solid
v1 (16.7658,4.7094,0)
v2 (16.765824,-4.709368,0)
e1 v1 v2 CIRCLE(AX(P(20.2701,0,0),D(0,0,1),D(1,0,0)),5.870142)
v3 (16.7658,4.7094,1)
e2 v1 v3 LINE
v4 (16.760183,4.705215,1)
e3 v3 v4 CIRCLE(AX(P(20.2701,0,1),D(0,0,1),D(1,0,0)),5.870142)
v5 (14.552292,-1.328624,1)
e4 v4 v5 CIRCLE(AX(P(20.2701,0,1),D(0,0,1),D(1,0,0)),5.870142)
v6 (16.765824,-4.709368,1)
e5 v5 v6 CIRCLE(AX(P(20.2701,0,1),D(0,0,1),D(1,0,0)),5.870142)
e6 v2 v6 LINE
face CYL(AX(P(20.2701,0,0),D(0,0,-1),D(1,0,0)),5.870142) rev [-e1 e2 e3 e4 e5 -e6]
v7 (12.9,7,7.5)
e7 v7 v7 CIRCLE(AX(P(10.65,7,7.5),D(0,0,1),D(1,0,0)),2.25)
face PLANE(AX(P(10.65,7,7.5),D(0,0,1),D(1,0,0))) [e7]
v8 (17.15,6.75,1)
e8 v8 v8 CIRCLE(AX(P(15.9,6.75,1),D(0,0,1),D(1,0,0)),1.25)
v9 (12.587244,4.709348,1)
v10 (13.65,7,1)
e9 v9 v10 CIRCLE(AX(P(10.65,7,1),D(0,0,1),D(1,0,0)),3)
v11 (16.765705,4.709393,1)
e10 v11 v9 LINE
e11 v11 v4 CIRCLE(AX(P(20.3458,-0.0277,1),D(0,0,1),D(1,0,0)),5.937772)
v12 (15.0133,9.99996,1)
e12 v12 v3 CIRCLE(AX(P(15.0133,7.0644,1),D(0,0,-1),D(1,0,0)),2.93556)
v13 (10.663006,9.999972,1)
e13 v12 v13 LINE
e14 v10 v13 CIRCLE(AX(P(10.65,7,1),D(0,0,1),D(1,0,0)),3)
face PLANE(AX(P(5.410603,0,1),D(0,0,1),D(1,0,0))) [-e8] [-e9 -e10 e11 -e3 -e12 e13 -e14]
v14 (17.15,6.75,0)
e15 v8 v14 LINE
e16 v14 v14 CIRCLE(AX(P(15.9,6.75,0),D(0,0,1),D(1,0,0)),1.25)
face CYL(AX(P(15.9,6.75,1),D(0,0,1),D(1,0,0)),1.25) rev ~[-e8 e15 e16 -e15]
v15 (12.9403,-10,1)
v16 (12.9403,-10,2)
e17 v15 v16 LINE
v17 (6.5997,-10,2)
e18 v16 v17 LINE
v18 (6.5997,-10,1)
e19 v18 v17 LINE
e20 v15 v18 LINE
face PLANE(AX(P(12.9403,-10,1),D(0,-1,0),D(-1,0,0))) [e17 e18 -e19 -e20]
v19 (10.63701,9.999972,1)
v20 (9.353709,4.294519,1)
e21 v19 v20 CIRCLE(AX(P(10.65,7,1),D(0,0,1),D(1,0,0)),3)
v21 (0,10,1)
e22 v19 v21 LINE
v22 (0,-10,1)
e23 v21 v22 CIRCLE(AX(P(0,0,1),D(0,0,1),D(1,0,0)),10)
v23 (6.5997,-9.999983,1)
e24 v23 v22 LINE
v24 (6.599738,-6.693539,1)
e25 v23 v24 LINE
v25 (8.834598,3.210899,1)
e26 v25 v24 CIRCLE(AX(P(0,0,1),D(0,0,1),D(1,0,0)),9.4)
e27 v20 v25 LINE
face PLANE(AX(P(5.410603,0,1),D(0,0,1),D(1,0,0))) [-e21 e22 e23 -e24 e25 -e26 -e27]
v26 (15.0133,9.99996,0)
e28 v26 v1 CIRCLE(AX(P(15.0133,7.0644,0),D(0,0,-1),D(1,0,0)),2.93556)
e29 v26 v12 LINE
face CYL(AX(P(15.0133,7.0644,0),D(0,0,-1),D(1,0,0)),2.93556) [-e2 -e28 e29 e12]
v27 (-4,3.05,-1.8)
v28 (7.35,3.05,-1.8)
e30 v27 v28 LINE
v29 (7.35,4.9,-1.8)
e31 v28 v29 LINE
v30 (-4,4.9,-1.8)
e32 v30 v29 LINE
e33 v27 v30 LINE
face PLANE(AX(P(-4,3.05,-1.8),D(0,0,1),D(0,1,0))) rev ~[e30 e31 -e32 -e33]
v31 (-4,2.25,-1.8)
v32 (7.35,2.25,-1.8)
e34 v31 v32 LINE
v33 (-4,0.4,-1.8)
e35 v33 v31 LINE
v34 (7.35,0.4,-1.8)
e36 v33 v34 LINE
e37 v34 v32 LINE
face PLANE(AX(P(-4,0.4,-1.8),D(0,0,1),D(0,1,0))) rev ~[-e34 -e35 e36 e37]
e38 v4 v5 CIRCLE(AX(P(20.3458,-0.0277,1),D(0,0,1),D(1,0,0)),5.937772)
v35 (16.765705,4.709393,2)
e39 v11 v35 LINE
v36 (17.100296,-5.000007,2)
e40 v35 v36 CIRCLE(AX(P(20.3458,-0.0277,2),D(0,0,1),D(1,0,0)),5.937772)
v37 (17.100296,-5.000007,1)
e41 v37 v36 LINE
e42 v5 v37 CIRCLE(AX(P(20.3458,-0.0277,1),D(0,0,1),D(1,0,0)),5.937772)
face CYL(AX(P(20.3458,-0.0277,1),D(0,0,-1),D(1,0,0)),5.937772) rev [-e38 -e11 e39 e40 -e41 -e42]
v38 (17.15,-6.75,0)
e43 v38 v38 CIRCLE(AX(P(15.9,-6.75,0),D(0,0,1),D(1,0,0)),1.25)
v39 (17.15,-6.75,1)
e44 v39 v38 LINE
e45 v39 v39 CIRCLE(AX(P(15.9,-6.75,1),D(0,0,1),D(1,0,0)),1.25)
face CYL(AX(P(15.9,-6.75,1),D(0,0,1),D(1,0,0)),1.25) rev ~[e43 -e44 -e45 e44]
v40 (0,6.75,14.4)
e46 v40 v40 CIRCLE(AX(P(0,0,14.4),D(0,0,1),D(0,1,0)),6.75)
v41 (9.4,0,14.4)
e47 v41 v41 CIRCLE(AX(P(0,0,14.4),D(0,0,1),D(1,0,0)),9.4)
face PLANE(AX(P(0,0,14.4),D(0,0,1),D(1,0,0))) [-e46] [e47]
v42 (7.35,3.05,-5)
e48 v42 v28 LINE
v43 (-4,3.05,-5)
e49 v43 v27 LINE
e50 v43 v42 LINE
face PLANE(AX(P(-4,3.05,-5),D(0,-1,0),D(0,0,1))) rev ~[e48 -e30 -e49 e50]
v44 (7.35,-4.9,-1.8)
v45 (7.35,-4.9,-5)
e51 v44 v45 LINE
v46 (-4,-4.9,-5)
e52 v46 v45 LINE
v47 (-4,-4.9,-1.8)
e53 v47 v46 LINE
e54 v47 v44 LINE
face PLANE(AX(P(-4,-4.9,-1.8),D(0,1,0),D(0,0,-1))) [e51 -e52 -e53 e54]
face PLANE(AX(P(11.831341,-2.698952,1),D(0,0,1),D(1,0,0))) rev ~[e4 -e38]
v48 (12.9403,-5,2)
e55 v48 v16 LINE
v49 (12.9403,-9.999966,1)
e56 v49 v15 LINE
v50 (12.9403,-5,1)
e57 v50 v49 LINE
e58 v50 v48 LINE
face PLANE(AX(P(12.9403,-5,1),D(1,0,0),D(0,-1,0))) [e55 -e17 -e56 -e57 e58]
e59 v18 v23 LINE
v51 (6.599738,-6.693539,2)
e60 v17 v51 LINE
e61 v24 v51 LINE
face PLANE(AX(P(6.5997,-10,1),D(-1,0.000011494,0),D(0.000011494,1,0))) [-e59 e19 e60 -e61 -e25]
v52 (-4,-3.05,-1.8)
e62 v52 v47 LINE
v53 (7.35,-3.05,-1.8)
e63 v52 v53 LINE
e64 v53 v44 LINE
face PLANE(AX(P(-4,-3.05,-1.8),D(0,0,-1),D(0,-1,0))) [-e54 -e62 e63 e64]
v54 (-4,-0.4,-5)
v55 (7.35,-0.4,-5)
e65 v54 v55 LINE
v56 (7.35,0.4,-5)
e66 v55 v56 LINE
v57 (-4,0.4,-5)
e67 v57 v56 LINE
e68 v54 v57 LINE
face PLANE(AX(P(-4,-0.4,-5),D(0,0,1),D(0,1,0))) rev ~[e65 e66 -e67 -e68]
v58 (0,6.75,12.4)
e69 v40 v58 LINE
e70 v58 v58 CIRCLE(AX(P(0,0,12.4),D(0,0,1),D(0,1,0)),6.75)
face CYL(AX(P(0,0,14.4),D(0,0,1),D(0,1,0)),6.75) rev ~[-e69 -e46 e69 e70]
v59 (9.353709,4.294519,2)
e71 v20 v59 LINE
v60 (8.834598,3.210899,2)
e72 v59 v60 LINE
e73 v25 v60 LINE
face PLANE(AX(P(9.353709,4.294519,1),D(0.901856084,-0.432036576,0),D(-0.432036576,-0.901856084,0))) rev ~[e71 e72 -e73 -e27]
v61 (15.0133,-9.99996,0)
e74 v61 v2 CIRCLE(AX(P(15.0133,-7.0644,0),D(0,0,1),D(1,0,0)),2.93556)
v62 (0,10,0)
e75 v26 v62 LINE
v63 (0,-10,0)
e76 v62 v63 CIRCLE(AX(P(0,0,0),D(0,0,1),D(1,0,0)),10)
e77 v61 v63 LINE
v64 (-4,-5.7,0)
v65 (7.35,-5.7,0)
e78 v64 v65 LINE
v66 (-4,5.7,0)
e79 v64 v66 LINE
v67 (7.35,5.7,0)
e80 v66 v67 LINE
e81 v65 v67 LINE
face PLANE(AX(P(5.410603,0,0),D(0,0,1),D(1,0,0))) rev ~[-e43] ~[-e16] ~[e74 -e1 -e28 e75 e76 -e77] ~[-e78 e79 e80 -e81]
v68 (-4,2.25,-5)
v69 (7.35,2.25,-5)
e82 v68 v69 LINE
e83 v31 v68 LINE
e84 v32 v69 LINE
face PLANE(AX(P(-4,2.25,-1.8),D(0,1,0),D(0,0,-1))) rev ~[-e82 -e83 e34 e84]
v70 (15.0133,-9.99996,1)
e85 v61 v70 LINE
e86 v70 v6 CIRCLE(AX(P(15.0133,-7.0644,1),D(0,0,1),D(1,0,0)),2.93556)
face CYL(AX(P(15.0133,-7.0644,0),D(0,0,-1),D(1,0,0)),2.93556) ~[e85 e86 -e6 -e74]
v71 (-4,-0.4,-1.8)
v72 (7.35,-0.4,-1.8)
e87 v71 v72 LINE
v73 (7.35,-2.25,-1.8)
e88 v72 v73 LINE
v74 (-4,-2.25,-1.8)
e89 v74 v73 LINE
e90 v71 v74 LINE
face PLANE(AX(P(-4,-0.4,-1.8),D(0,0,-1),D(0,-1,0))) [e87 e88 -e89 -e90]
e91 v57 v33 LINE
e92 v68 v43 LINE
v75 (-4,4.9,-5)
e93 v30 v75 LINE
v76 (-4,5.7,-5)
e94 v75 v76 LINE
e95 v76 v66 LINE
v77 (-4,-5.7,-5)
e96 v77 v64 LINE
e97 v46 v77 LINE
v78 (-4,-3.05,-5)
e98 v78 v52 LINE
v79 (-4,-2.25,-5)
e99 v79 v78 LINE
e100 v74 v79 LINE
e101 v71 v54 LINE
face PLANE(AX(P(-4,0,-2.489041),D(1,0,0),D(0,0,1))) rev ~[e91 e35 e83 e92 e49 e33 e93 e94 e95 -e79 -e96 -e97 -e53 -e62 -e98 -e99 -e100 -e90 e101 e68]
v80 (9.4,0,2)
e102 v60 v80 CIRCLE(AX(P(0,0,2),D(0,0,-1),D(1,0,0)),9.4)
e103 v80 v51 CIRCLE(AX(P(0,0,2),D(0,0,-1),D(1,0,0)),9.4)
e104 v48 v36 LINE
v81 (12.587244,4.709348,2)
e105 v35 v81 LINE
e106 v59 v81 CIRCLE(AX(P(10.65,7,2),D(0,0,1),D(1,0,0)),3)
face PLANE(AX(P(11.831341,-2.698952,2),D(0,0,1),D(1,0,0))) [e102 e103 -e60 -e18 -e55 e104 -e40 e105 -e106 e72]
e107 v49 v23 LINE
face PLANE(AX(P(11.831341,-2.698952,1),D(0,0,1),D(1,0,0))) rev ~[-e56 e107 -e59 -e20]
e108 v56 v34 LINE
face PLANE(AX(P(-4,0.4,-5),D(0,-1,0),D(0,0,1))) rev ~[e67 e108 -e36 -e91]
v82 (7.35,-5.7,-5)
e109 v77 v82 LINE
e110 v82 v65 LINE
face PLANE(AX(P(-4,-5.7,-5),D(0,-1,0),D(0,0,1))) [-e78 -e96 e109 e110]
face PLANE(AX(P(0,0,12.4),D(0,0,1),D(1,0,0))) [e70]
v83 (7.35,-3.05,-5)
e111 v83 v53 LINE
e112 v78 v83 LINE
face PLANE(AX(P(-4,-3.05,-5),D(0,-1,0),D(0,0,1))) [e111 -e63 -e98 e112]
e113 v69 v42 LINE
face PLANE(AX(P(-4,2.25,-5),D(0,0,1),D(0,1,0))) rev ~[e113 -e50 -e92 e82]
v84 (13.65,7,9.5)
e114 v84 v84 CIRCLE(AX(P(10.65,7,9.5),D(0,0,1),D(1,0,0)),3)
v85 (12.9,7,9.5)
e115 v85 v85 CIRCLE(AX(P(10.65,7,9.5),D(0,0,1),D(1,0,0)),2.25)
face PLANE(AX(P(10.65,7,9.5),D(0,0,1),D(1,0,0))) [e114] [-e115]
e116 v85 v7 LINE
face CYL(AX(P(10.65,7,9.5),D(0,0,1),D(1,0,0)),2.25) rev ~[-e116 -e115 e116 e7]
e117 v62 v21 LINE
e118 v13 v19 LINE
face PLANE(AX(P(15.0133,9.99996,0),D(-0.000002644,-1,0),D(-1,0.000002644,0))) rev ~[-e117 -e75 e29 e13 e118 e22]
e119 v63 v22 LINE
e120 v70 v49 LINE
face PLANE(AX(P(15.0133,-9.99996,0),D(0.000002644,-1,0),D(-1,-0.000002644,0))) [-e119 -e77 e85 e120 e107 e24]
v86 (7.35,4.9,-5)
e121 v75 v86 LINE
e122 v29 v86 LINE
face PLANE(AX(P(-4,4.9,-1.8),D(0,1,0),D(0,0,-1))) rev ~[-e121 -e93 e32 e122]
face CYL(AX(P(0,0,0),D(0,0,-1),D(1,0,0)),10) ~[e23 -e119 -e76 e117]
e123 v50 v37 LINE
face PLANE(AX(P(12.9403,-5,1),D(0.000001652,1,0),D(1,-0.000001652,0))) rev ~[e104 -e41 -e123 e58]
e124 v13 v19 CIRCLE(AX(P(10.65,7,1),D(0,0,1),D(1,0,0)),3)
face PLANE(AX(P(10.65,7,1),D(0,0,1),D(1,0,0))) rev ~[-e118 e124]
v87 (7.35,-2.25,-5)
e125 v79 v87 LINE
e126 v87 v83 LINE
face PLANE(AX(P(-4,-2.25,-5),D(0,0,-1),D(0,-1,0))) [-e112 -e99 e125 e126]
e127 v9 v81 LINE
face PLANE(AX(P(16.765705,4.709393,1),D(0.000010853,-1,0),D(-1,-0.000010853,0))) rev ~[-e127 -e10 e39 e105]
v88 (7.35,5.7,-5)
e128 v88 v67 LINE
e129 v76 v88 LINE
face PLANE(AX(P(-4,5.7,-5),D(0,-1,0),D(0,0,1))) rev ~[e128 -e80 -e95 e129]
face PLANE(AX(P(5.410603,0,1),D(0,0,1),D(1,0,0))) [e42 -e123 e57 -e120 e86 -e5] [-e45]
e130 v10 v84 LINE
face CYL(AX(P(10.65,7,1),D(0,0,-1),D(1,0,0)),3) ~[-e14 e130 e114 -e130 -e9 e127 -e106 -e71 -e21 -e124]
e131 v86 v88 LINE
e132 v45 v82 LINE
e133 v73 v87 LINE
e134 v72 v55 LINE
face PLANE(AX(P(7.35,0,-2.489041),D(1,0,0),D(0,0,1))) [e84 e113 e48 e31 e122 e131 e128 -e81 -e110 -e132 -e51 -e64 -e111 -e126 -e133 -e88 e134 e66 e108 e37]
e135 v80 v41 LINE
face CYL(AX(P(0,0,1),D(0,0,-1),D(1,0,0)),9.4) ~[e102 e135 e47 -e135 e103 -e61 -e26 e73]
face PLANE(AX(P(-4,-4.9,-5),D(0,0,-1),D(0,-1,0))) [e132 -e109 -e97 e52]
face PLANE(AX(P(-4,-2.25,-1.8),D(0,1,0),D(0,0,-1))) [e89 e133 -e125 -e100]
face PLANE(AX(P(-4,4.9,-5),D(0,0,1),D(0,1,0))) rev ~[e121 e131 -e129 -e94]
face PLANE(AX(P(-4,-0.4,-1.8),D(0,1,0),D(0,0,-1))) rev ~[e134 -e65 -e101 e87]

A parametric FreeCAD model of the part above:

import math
import FreeCAD as App
import Part
import Sketcher


def add_polygon(sketch, points):
    """Adds a closed chain of lines whose ends are joined by coincident constraints."""
    first, n = sketch.GeometryCount, len(points)
    for a, b in zip(points, points[1:] + points[:1]):
        sketch.addGeometry(Part.LineSegment(App.Vector(*a, 0), App.Vector(*b, 0)), False)
    for i in range(n):
        sketch.addConstraint(Sketcher.Constraint("Coincident", first + i, 2, first + (i + 1) % n, 1))

doc = App.newDocument("Part")
body = doc.addObject("PartDesign::Body", "Body")

# Sketch on XY plane
sketch1 = body.newObject("Sketcher::SketchObject", "Sketch")
sketch1.AttachmentSupport = (doc.getObject("XY_Plane"), [""])
sketch1.MapMode = "FlatFace"
sketch1.addGeometry(Part.ArcOfCircle(Part.Circle(App.Vector(15, 7.1, 0), App.Vector(0, 0, 1), 2.9), math.radians(-53), math.radians(90)), False)
sketch1.addGeometry(Part.LineSegment(App.Vector(15, 10, 0), App.Vector(0, 10, 0)), False)
sketch1.addGeometry(Part.ArcOfCircle(Part.Circle(App.Vector(0, 0, 0), App.Vector(0, 0, 1), 10), math.radians(90), math.radians(270)), False)
sketch1.addGeometry(Part.LineSegment(App.Vector(0, -10, 0), App.Vector(15, -10, 0)), False)
sketch1.addGeometry(Part.ArcOfCircle(Part.Circle(App.Vector(15, -7.1, 0), App.Vector(0, 0, 1), 2.9), math.radians(-90), math.radians(53)), False)
sketch1.addGeometry(Part.ArcOfCircle(Part.Circle(App.Vector(20.3, 0, 0), App.Vector(0, 0, 1), 5.9), math.radians(127), math.radians(233)), False)
sketch1.addConstraint(Sketcher.Constraint("Tangent", 0, 2, 1, 1))
sketch1.addConstraint(Sketcher.Constraint("Tangent", 1, 2, 2, 1))
sketch1.addConstraint(Sketcher.Constraint("Tangent", 2, 2, 3, 1))
sketch1.addConstraint(Sketcher.Constraint("Tangent", 3, 2, 4, 1))
sketch1.addConstraint(Sketcher.Constraint("Tangent", 4, 2, 5, 2))
sketch1.addConstraint(Sketcher.Constraint("Tangent", 5, 1, 0, 1))
sketch1.addConstraint(Sketcher.Constraint("Horizontal", 1))
sketch1.addConstraint(Sketcher.Constraint("Horizontal", 3))
sketch1.addConstraint(Sketcher.Constraint("Coincident", 2, 3, -1, 1))
sketch1.addConstraint(Sketcher.Constraint("Equal", 0, 4))
sketch1.addConstraint(Sketcher.Constraint("PointOnObject", 5, 3, -1))
sketch1.addConstraint(Sketcher.Constraint("Radius", 2, 10.0))
sketch1.addConstraint(Sketcher.Constraint("Radius", 0, 2.9356))
sketch1.addConstraint(Sketcher.Constraint("Radius", 5, 5.8701))
sketch1.addConstraint(Sketcher.Constraint("DistanceX", -1, 1, 5, 3, 20.27))
pad1 = body.newObject("PartDesign::Pad", "Pad")
pad1.Profile = sketch1
pad1.Length = 1

# Sketch on XY plane
sketch2 = body.newObject("Sketcher::SketchObject", "Sketch001")
sketch2.AttachmentSupport = (doc.getObject("XY_Plane"), [""])
sketch2.MapMode = "FlatFace"
sketch2.AttachmentOffset = App.Placement(App.Vector(0, 0, 1), App.Rotation())
sketch2.addGeometry(Part.Circle(App.Vector(15.9, -6.8, 0), App.Vector(0, 0, 1), 1.2), False)
sketch2.addGeometry(Part.Circle(App.Vector(15.9, 6.8, 0), App.Vector(0, 0, 1), 1.2), False)
sketch2.addConstraint(Sketcher.Constraint("Equal", 0, 1))
sketch2.addConstraint(Sketcher.Constraint("Symmetric", 0, 3, 1, 3, -1))
sketch2.addConstraint(Sketcher.Constraint("Diameter", 0, 2.5))
sketch2.addConstraint(Sketcher.Constraint("DistanceX", -1, 1, 0, 3, 15.9))
sketch2.addConstraint(Sketcher.Constraint("DistanceY", 0, 3, 1, 3, 13.5))
pocket1 = body.newObject("PartDesign::Pocket", "Pocket")
pocket1.Profile = sketch2
pocket1.Type = "ThroughAll"

# Sketch on XY plane
sketch3 = body.newObject("Sketcher::SketchObject", "Sketch002")
sketch3.AttachmentSupport = (doc.getObject("XY_Plane"), [""])
sketch3.MapMode = "FlatFace"
sketch3.AttachmentOffset = App.Placement(App.Vector(0, 0, 1), App.Rotation())
sketch3.addGeometry(Part.Circle(App.Vector(10.7, 7, 0), App.Vector(0, 0, 1), 3), False)
sketch3.addConstraint(Sketcher.Constraint("Diameter", 0, 6.0))
sketch3.addConstraint(Sketcher.Constraint("DistanceY", -1, 1, 0, 3, 7.0))
sketch3.addConstraint(Sketcher.Constraint("DistanceX", -1, 1, 0, 3, 10.65))
pad2 = body.newObject("PartDesign::Pad", "Pad001")
pad2.Profile = sketch3
pad2.Length = 8.5

# Sketch on XY plane
sketch4 = body.newObject("Sketcher::SketchObject", "Sketch003")
sketch4.AttachmentSupport = (doc.getObject("XY_Plane"), [""])
sketch4.MapMode = "FlatFace"
sketch4.AttachmentOffset = App.Placement(App.Vector(0, 0, 1), App.Rotation())
sketch4.addGeometry(Part.Circle(App.Vector(0, 0, 0), App.Vector(0, 0, 1), 9), False)
sketch4.addConstraint(Sketcher.Constraint("Coincident", 0, 3, -1, 1))
sketch4.addConstraint(Sketcher.Constraint("Diameter", 0, 18.8))
pad3 = body.newObject("PartDesign::Pad", "Pad002")
pad3.Profile = sketch4
pad3.Length = 13.4

# Sketch on XY plane
sketch5 = body.newObject("Sketcher::SketchObject", "Sketch004")
sketch5.AttachmentSupport = (doc.getObject("XY_Plane"), [""])
sketch5.MapMode = "FlatFace"
sketch5.AttachmentOffset = App.Placement(App.Vector(0, 0, 1), App.Rotation())
sketch5.addGeometry(Part.ArcOfCircle(Part.Circle(App.Vector(20.3, 0, 0), App.Vector(0, 0, 1), 5.9), math.radians(127), math.radians(237)), False)
sketch5.addGeometry(Part.LineSegment(App.Vector(16.8, 4.7, 0), App.Vector(12.6, 4.7, 0)), False)
sketch5.addGeometry(Part.ArcOfCircle(Part.Circle(App.Vector(10.7, 7, 0), App.Vector(0, 0, 1), 3), math.radians(-116), math.radians(-50)), False)
sketch5.addGeometry(Part.LineSegment(App.Vector(9.4, 4.3, 0), App.Vector(8.8, 3.2, 0)), False)
sketch5.addGeometry(Part.ArcOfCircle(Part.Circle(App.Vector(0, 0, 0), App.Vector(0, 0, 1), 9.4), math.radians(-45), math.radians(20)), False)
sketch5.addGeometry(Part.LineSegment(App.Vector(6.6, -6.7, 0), App.Vector(6.6, -10, 0)), False)
sketch5.addGeometry(Part.LineSegment(App.Vector(6.6, -10, 0), App.Vector(12.9, -10, 0)), False)
sketch5.addGeometry(Part.LineSegment(App.Vector(12.9, -10, 0), App.Vector(12.9, -5, 0)), False)
sketch5.addGeometry(Part.LineSegment(App.Vector(12.9, -5, 0), App.Vector(17.1, -5, 0)), False)
sketch5.addConstraint(Sketcher.Constraint("Coincident", 0, 1, 1, 1))
sketch5.addConstraint(Sketcher.Constraint("Coincident", 1, 2, 2, 2))
sketch5.addConstraint(Sketcher.Constraint("Coincident", 2, 1, 3, 1))
sketch5.addConstraint(Sketcher.Constraint("Coincident", 3, 2, 4, 2))
sketch5.addConstraint(Sketcher.Constraint("Coincident", 4, 1, 5, 1))
sketch5.addConstraint(Sketcher.Constraint("Coincident", 5, 2, 6, 1))
sketch5.addConstraint(Sketcher.Constraint("Coincident", 6, 2, 7, 1))
sketch5.addConstraint(Sketcher.Constraint("Coincident", 7, 2, 8, 1))
sketch5.addConstraint(Sketcher.Constraint("Coincident", 8, 2, 0, 2))
sketch5.addConstraint(Sketcher.Constraint("Horizontal", 1))
sketch5.addConstraint(Sketcher.Constraint("Vertical", 5))
sketch5.addConstraint(Sketcher.Constraint("Horizontal", 6))
sketch5.addConstraint(Sketcher.Constraint("Vertical", 7))
sketch5.addConstraint(Sketcher.Constraint("Horizontal", 8))
sketch5.addConstraint(Sketcher.Constraint("Coincident", 4, 3, -1, 1))
sketch5.addConstraint(Sketcher.Constraint("Radius", 2, 3.0))
sketch5.addConstraint(Sketcher.Constraint("Radius", 4, 9.4))
sketch5.addConstraint(Sketcher.Constraint("DistanceY", 7, 1, 7, 2, 5.0))
sketch5.addConstraint(Sketcher.Constraint("DistanceY", -1, 1, 2, 3, 7.0))
sketch5.addConstraint(Sketcher.Constraint("DistanceY", 5, 2, -1, 1, 10.0))
sketch5.addConstraint(Sketcher.Constraint("DistanceX", 8, 1, 8, 2, 4.16))
sketch5.addConstraint(Sketcher.Constraint("Radius", 0, 5.9378))
sketch5.addConstraint(Sketcher.Constraint("DistanceX", -1, 1, 2, 3, 10.65))
sketch5.addConstraint(Sketcher.Constraint("DistanceX", 0, 1, 0, 3, 3.58))
sketch5.addConstraint(Sketcher.Constraint("DistanceX", 1, 2, 1, 1, 4.1785))
sketch5.addConstraint(Sketcher.Constraint("DistanceX", 6, 1, 6, 2, 6.3406))
sketch5.addConstraint(Sketcher.Constraint("DistanceY", 5, 2, 5, 1, 3.3065))
sketch5.addConstraint(Sketcher.Constraint("DistanceY", -1, 1, 3, 2, 3.211))
sketch5.addConstraint(Sketcher.Constraint("DistanceY", 2, 1, 1, 2, 0.415))
pad4 = body.newObject("PartDesign::Pad", "Pad003")
pad4.Profile = sketch5
pad4.Length = 1

# Sketch on YZ plane
sketch6 = body.newObject("Sketcher::SketchObject", "Sketch005")
sketch6.AttachmentSupport = (doc.getObject("YZ_Plane"), [""])
sketch6.MapMode = "FlatFace"
sketch6.AttachmentOffset = App.Placement(App.Vector(0, 0, -4), App.Rotation())
add_polygon(sketch6, [(-2.2, -1.8), (-0.4, -1.8), (-0.4, -5), (0.4, -5), (0.4, -1.8), (2.2, -1.8), (2.2, -5), (3, -5), (3, -1.8), (4.9, -1.8), (4.9, -5), (5.7, -5), (5.7, 0), (-5.7, 0), (-5.7, -5), (-4.9, -5), (-4.9, -1.8), (-3, -1.8), (-3, -5), (-2.2, -5)])  # lines 0-19
sketch6.addConstraint(Sketcher.Constraint("Horizontal", 0))
sketch6.addConstraint(Sketcher.Constraint("Vertical", 1))
sketch6.addConstraint(Sketcher.Constraint("Horizontal", 2))
sketch6.addConstraint(Sketcher.Constraint("Vertical", 3))
sketch6.addConstraint(Sketcher.Constraint("Horizontal", 4))
sketch6.addConstraint(Sketcher.Constraint("Vertical", 5))
sketch6.addConstraint(Sketcher.Constraint("Horizontal", 6))
sketch6.addConstraint(Sketcher.Constraint("Vertical", 7))
sketch6.addConstraint(Sketcher.Constraint("Horizontal", 8))
sketch6.addConstraint(Sketcher.Constraint("Vertical", 9))
sketch6.addConstraint(Sketcher.Constraint("Horizontal", 10))
sketch6.addConstraint(Sketcher.Constraint("Vertical", 11))
sketch6.addConstraint(Sketcher.Constraint("Horizontal", 12))
sketch6.addConstraint(Sketcher.Constraint("Vertical", 13))
sketch6.addConstraint(Sketcher.Constraint("Horizontal", 14))
sketch6.addConstraint(Sketcher.Constraint("Vertical", 15))
sketch6.addConstraint(Sketcher.Constraint("Horizontal", 16))
sketch6.addConstraint(Sketcher.Constraint("Vertical", 17))
sketch6.addConstraint(Sketcher.Constraint("Horizontal", 18))
sketch6.addConstraint(Sketcher.Constraint("Vertical", 19))
sketch6.addConstraint(Sketcher.Constraint("Symmetric", 11, 2, 12, 2, -1, 1))
sketch6.addConstraint(Sketcher.Constraint("Symmetric", 0, 2, 3, 2, -2))
sketch6.addConstraint(Sketcher.Constraint("Symmetric", 9, 2, 14, 2, -2))
sketch6.addConstraint(Sketcher.Constraint("Symmetric", 7, 2, 16, 2, -2))
sketch6.addConstraint(Sketcher.Constraint("Symmetric", 5, 2, 18, 2, -2))
sketch6.addConstraint(Sketcher.Constraint("Horizontal", 2, 2, 5, 2))
sketch6.addConstraint(Sketcher.Constraint("Horizontal", 4, 2, 7, 2))
sketch6.addConstraint(Sketcher.Constraint("Horizontal", 6, 2, 9, 2))
sketch6.addConstraint(Sketcher.Constraint("Equal", 2, 6))
sketch6.addConstraint(Sketcher.Constraint("Equal", 4, 8))
sketch6.addConstraint(Sketcher.Constraint("Equal", 6, 10))
sketch6.addConstraint(Sketcher.Constraint("DistanceX", -1, 1, 8, 2, 4.9))
sketch6.addConstraint(Sketcher.Constraint("DistanceY", 11, 1, 11, 2, 5.0))
sketch6.addConstraint(Sketcher.Constraint("DistanceX", 2, 1, 2, 2, 0.8))
sketch6.addConstraint(Sketcher.Constraint("DistanceY", 1, 2, 1, 1, 3.2))
pad5 = body.newObject("PartDesign::Pad", "Pad004")
pad5.Profile = sketch6
pad5.Length = 11.35

# Sketch on XY plane
sketch7 = body.newObject("Sketcher::SketchObject", "Sketch006")
sketch7.AttachmentSupport = (doc.getObject("XY_Plane"), [""])
sketch7.MapMode = "FlatFace"
sketch7.AttachmentOffset = App.Placement(App.Vector(0, 0, 14.4), App.Rotation())
sketch7.addGeometry(Part.Circle(App.Vector(0, 0, 0), App.Vector(0, 0, 1), 7), False)
sketch7.addConstraint(Sketcher.Constraint("Coincident", 0, 3, -1, 1))
sketch7.addConstraint(Sketcher.Constraint("Diameter", 0, 13.5))
pocket2 = body.newObject("PartDesign::Pocket", "Pocket001")
pocket2.Profile = sketch7
pocket2.Length = 2

# Sketch on XY plane
sketch8 = body.newObject("Sketcher::SketchObject", "Sketch007")
sketch8.AttachmentSupport = (doc.getObject("XY_Plane"), [""])
sketch8.MapMode = "FlatFace"
sketch8.AttachmentOffset = App.Placement(App.Vector(0, 0, 9.5), App.Rotation())
sketch8.addGeometry(Part.Circle(App.Vector(10.7, 7, 0), App.Vector(0, 0, 1), 2.2), False)
sketch8.addConstraint(Sketcher.Constraint("Diameter", 0, 4.5))
sketch8.addConstraint(Sketcher.Constraint("DistanceY", -1, 1, 0, 3, 7.0))
sketch8.addConstraint(Sketcher.Constraint("DistanceX", -1, 1, 0, 3, 10.65))
pocket3 = body.newObject("PartDesign::Pocket", "Pocket002")
pocket3.Profile = sketch8
pocket3.Length = 2

doc.recompute()
